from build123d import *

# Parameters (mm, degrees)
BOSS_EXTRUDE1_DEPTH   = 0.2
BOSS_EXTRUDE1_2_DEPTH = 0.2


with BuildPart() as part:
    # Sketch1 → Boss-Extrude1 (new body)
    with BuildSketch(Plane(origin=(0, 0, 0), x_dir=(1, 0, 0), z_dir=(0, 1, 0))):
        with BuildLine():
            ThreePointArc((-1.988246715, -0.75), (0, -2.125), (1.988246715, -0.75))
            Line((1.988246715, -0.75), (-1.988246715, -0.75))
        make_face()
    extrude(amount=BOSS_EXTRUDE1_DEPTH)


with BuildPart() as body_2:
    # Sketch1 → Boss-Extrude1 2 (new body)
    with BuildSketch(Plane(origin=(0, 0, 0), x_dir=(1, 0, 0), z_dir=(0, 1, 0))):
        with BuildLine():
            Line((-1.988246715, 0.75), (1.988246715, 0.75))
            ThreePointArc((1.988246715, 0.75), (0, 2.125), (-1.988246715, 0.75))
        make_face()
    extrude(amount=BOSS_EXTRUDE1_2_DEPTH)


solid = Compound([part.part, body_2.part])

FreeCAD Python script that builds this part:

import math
import FreeCAD as App
import Part
import Sketcher

V = App.Vector

doc = App.newDocument("Part")
params = doc.addObject("Spreadsheet::Sheet", "Params")
for row, (alias, value) in enumerate([
    ("pad1_length", "0.2 mm"),
    ("pad2_length", "0.2 mm"),
], start=1):
    params.set(f"A{row}", alias)
    params.set(f"B{row}", "=" + value)
    params.setAlias(f"B{row}", alias)

body = doc.addObject("PartDesign::Body", "Body")

sketch1 = body.newObject("Sketcher::SketchObject", "Sketch")
sketch1.AttachmentSupport = (doc.getObject("XZ_Plane"), [""])
sketch1.MapMode = "FlatFace"
sketch1.addGeometry(Part.ArcOfCircle(Part.Circle(V(0, 0, 0), V(0, 0, 1), 2.1), math.radians(21), math.radians(159)), False)
sketch1.addGeometry(Part.LineSegment(V(2, 0.8, 0), V(-2, 0.8, 0)), False)
sketch1.addConstraint(Sketcher.Constraint("Coincident", 0, 1, 1, 1))
sketch1.addConstraint(Sketcher.Constraint("Coincident", 1, 2, 0, 2))
sketch1.addConstraint(Sketcher.Constraint("Horizontal", 1))
sketch1.addConstraint(Sketcher.Constraint("Coincident", 0, 3, -1, 1))
sketch1.addConstraint(Sketcher.Constraint("Radius", 0, 2.125))
sketch1.addConstraint(Sketcher.Constraint("DistanceY", -1, 1, 0, 1, 0.75))
pad1 = body.newObject("PartDesign::Pad", "Pad")
pad1.Profile = sketch1
pad1.setExpression("Length", "Params.pad1_length")
pad1.Reversed = True
body2 = doc.addObject("PartDesign::Body", "Body001")

sketch2 = body2.newObject("Sketcher::SketchObject", "Sketch001")
sketch2.AttachmentSupport = (doc.getObject("XZ_Plane001"), [""])
sketch2.MapMode = "FlatFace"
sketch2.addGeometry(Part.LineSegment(V(-2, -0.8, 0), V(2, -0.8, 0)), False)
sketch2.addGeometry(Part.ArcOfCircle(Part.Circle(V(0, 0, 0), V(0, 0, 1), 2.1), math.radians(-159), math.radians(-21)), False)
sketch2.addConstraint(Sketcher.Constraint("Coincident", 0, 1, 1, 1))
sketch2.addConstraint(Sketcher.Constraint("Coincident", 1, 2, 0, 2))
sketch2.addConstraint(Sketcher.Constraint("Horizontal", 0))
sketch2.addConstraint(Sketcher.Constraint("Coincident", 1, 3, -1, 1))
sketch2.addConstraint(Sketcher.Constraint("Radius", 1, 2.125))
sketch2.addConstraint(Sketcher.Constraint("DistanceY", 0, 1, -1, 1, 0.75))
pad2 = body2.newObject("PartDesign::Pad", "Pad001")
pad2.Profile = sketch2
pad2.setExpression("Length", "Params.pad2_length")
pad2.Reversed = True

doc.recompute()
